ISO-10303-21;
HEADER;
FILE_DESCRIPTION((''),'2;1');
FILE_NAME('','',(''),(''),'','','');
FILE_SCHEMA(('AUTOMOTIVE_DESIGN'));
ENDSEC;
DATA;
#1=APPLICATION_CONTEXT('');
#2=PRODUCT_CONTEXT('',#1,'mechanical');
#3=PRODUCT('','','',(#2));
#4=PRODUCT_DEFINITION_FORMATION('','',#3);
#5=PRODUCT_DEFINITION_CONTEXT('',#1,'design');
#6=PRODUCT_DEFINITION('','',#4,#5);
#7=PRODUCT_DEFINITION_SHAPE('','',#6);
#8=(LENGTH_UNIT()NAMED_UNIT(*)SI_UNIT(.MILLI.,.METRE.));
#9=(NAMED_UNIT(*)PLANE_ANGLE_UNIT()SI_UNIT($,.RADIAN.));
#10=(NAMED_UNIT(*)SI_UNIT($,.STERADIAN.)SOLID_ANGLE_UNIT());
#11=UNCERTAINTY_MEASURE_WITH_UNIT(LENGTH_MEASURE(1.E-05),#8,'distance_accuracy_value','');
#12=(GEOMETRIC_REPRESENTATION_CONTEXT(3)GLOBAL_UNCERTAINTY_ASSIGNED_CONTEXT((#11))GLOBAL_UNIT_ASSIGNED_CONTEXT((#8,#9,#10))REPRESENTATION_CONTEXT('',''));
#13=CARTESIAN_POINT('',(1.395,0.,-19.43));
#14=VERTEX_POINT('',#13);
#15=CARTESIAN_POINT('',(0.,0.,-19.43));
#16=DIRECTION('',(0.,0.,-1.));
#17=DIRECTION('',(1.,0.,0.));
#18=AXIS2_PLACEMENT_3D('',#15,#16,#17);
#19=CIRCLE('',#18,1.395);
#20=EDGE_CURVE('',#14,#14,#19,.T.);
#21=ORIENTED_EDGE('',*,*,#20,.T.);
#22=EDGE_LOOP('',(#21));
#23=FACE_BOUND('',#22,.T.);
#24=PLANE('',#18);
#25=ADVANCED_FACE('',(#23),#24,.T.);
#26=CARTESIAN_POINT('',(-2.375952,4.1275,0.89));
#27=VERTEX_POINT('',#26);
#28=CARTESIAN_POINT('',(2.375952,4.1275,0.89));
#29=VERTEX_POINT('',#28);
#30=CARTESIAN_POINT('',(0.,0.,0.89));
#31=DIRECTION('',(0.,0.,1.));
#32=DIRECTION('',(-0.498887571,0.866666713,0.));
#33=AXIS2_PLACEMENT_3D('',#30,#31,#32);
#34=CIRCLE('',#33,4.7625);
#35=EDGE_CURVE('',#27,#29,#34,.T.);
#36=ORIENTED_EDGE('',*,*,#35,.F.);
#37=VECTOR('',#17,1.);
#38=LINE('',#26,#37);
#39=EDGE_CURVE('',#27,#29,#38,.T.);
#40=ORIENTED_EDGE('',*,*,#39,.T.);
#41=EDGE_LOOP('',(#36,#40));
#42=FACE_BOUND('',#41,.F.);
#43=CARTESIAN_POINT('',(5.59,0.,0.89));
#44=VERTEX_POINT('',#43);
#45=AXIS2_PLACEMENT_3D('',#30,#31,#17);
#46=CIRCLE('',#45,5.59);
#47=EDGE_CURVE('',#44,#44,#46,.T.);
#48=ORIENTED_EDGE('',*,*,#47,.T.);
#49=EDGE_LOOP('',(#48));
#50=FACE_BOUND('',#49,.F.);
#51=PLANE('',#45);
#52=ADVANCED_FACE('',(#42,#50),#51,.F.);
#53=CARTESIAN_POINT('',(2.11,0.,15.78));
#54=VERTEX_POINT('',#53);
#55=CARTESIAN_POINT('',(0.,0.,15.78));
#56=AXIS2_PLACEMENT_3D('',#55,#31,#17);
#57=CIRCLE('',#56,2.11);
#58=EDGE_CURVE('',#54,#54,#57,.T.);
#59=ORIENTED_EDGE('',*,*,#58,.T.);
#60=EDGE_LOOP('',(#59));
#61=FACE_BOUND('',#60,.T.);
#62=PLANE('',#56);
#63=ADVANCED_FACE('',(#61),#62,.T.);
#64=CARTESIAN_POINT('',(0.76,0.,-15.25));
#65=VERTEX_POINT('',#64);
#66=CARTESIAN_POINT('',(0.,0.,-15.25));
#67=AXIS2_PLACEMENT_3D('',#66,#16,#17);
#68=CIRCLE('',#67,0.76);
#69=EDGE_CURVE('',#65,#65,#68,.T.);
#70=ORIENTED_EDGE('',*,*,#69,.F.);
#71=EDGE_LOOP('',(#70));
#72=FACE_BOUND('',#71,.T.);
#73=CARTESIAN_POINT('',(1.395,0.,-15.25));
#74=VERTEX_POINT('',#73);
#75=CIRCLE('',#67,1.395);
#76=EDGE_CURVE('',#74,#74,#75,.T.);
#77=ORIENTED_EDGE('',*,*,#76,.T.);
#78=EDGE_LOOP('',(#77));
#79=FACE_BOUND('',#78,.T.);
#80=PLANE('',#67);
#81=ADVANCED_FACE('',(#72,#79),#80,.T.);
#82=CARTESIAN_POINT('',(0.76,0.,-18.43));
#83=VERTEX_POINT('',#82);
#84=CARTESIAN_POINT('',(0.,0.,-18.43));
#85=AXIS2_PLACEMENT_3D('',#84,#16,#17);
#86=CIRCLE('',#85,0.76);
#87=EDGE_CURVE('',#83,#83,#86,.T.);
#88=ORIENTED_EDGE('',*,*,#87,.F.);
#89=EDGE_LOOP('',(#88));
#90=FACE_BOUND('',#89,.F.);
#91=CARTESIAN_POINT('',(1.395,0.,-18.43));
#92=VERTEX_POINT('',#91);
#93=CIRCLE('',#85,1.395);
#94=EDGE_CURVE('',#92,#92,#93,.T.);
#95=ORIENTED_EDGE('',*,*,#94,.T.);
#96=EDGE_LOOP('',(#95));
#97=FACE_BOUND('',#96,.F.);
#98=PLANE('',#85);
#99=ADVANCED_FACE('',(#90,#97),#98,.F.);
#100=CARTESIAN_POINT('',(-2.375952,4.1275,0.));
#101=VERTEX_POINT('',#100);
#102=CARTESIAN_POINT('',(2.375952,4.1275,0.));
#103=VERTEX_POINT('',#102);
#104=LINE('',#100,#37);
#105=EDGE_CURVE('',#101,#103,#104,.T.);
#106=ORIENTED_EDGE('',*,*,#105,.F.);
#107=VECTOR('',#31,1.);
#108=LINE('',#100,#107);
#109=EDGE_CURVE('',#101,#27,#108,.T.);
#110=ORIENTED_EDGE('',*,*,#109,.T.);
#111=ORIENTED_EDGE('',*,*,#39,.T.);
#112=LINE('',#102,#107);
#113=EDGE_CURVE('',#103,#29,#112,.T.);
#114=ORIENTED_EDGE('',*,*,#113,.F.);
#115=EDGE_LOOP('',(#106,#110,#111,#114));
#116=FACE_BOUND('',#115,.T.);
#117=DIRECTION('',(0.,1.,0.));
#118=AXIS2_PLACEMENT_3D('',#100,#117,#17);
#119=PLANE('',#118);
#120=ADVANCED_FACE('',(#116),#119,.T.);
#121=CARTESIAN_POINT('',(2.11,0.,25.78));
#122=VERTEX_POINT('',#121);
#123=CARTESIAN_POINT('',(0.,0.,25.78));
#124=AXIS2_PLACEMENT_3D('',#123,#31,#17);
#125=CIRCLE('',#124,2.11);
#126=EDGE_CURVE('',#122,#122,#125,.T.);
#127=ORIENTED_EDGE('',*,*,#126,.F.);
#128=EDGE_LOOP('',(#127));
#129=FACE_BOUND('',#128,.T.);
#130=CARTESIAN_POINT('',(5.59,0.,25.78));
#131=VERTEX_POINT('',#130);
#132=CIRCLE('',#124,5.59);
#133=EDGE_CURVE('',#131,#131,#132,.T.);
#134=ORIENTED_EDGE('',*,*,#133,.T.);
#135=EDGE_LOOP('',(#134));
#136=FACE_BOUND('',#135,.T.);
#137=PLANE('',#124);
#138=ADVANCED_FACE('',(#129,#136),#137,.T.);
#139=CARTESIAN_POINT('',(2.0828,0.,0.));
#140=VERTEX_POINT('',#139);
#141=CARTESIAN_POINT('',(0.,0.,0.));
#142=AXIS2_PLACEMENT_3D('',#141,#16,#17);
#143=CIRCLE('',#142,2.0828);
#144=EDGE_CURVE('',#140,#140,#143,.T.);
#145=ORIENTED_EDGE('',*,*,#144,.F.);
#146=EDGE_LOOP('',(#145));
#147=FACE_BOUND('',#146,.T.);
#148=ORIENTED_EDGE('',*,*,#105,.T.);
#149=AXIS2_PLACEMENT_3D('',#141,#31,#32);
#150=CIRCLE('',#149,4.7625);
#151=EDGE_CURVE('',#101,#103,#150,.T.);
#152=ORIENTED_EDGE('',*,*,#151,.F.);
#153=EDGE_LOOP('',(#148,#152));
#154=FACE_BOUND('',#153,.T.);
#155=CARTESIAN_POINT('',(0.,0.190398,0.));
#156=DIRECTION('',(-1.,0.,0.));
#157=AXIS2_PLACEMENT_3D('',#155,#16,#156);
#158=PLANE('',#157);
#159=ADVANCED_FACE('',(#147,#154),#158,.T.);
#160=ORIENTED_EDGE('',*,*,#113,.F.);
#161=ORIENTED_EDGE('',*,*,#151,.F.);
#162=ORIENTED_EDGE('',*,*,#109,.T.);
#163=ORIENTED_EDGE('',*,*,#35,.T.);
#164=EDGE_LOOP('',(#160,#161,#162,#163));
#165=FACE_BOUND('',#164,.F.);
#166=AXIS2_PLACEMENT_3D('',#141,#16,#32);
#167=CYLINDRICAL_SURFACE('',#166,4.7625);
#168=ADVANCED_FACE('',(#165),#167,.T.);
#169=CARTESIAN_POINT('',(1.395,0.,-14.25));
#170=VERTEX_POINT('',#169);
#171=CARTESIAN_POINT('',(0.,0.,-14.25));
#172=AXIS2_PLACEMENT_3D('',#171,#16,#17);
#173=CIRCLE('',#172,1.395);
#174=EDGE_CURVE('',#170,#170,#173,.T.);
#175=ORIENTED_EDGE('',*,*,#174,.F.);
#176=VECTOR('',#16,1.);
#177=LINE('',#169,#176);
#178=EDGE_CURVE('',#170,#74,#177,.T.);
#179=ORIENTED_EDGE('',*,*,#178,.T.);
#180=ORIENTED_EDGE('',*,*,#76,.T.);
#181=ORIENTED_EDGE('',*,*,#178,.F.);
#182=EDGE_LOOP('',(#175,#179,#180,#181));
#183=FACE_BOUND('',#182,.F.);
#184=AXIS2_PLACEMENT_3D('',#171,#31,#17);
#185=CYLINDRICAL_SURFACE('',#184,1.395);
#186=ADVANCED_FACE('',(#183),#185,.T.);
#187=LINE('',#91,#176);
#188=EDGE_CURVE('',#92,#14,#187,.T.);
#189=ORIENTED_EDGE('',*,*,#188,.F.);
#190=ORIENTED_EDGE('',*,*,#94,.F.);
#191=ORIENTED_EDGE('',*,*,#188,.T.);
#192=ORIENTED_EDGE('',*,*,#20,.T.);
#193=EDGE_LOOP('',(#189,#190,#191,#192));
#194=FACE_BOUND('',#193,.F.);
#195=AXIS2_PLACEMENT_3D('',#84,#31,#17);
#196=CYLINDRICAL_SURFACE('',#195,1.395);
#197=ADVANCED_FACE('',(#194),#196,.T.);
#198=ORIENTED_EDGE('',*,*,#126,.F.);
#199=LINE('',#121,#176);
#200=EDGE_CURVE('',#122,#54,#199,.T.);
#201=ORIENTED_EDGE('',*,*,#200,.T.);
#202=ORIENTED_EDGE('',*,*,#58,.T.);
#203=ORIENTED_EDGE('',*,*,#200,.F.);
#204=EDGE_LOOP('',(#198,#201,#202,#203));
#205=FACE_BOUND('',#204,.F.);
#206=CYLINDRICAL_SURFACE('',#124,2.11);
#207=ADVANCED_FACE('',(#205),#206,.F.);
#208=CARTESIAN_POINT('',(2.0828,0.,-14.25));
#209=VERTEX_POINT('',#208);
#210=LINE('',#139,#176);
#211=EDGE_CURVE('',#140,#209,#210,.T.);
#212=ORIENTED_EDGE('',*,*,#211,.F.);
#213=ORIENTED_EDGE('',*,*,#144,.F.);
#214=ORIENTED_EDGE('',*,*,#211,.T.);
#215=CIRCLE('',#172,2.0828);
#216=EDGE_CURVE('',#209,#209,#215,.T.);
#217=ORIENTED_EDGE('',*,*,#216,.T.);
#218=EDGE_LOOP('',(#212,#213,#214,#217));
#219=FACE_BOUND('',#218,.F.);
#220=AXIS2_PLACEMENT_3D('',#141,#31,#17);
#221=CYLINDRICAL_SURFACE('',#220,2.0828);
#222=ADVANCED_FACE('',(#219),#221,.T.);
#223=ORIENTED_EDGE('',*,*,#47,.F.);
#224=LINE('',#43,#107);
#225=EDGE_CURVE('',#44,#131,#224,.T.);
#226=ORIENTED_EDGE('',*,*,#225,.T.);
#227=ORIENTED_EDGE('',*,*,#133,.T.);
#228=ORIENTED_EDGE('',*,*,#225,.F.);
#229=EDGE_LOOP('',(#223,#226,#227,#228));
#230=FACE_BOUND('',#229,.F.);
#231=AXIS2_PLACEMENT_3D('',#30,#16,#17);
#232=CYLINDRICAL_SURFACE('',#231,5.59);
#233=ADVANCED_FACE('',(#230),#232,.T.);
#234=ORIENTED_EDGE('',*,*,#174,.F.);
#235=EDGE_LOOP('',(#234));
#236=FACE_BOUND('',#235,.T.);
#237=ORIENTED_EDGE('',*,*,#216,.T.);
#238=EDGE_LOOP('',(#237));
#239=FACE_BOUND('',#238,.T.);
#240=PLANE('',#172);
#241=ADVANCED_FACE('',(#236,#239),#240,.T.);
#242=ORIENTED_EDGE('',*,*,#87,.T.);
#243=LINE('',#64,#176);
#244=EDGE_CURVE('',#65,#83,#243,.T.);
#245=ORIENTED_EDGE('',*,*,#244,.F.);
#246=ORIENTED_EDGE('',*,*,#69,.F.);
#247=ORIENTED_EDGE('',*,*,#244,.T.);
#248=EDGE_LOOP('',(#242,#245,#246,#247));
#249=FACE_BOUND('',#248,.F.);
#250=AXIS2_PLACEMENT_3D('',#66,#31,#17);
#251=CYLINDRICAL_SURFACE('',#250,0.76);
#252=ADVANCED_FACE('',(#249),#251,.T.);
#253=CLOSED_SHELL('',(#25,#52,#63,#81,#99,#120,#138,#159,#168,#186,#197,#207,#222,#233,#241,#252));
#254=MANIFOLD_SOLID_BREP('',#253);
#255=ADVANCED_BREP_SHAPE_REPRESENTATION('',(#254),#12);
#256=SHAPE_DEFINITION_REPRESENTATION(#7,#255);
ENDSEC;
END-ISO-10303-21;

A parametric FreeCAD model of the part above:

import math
import FreeCAD as App
import Part
import Sketcher

doc = App.newDocument("Part")
body = doc.addObject("PartDesign::Body", "Body")

# Sketch on XY plane
sketch1 = body.newObject("Sketcher::SketchObject", "Sketch")
sketch1.AttachmentSupport = (doc.getObject("XY_Plane"), [""])
sketch1.MapMode = "FlatFace"
sketch1.addGeometry(Part.LineSegment(App.Vector(2.375952, 4.1275, 0), App.Vector(-2.375952, 4.1275, 0)), False)
sketch1.addGeometry(Part.ArcOfCircle(Part.Circle(App.Vector(0, 0, 0), App.Vector(0, 0, 1), 4.7625), math.radians(119.92643), math.radians(420.07357)), False)
sketch1.addConstraint(Sketcher.Constraint("Coincident", 0, 1, 1, 2))
sketch1.addConstraint(Sketcher.Constraint("Coincident", 1, 1, 0, 2))
sketch1.addConstraint(Sketcher.Constraint("Horizontal", 0))
sketch1.addConstraint(Sketcher.Constraint("Coincident", 1, 3, -1, 1))
sketch1.addConstraint(Sketcher.Constraint("Radius", 1, 4.7625))
sketch1.addConstraint(Sketcher.Constraint("DistanceY", -1, 1, 0, 1, 4.1275))
pad1 = body.newObject("PartDesign::Pad", "Pad")
pad1.Profile = sketch1
pad1.Length = 0.89

# Sketch on XY plane
sketch2 = body.newObject("Sketcher::SketchObject", "Sketch001")
sketch2.AttachmentSupport = (doc.getObject("XY_Plane"), [""])
sketch2.MapMode = "FlatFace"
sketch2.AttachmentOffset = App.Placement(App.Vector(0, 0, 0.89), App.Rotation())
sketch2.addGeometry(Part.Circle(App.Vector(0, 0, 0), App.Vector(0, 0, 1), 5.59), False)
sketch2.addConstraint(Sketcher.Constraint("Coincident", 0, 3, -1, 1))
sketch2.addConstraint(Sketcher.Constraint("Diameter", 0, 11.18))
pad2 = body.newObject("PartDesign::Pad", "Pad001")
pad2.Profile = sketch2
pad2.Length = 24.89

# Sketch on XY plane
sketch3 = body.newObject("Sketcher::SketchObject", "Sketch002")
sketch3.AttachmentSupport = (doc.getObject("XY_Plane"), [""])
sketch3.MapMode = "FlatFace"
sketch3.addGeometry(Part.Circle(App.Vector(0, 0, 0), App.Vector(0, 0, 1), 2.0828), False)
sketch3.addConstraint(Sketcher.Constraint("Coincident", 0, 3, -1, 1))
sketch3.addConstraint(Sketcher.Constraint("Diameter", 0, 4.1656))
pad3 = body.newObject("PartDesign::Pad", "Pad002")
pad3.Profile = sketch3
pad3.Length = 14.25
pad3.Reversed = True

# Sketch on XY plane
sketch4 = body.newObject("Sketcher::SketchObject", "Sketch003")
sketch4.AttachmentSupport = (doc.getObject("XY_Plane"), [""])
sketch4.MapMode = "FlatFace"
sketch4.AttachmentOffset = App.Placement(App.Vector(0, 0, -14.25), App.Rotation())
sketch4.addGeometry(Part.Circle(App.Vector(0, 0, 0), App.Vector(0, 0, 1), 1.395), False)
sketch4.addConstraint(Sketcher.Constraint("Coincident", 0, 3, -1, 1))
sketch4.addConstraint(Sketcher.Constraint("Diameter", 0, 2.79))
pad4 = body.newObject("PartDesign::Pad", "Pad003")
pad4.Profile = sketch4
pad4.Length = 1
pad4.Reversed = True

# Sketch on XY plane
sketch5 = body.newObject("Sketcher::SketchObject", "Sketch004")
sketch5.AttachmentSupport = (doc.getObject("XY_Plane"), [""])
sketch5.MapMode = "FlatFace"
sketch5.AttachmentOffset = App.Placement(App.Vector(0, 0, -15.25), App.Rotation())
sketch5.addGeometry(Part.Circle(App.Vector(0, 0, 0), App.Vector(0, 0, 1), 0.76), False)
sketch5.addConstraint(Sketcher.Constraint("Coincident", 0, 3, -1, 1))
sketch5.addConstraint(Sketcher.Constraint("Diameter", 0, 1.52))
pad5 = body.newObject("PartDesign::Pad", "Pad004")
pad5.Profile = sketch5
pad5.Length = 3.18
pad5.Reversed = True

# Sketch on XY plane
sketch6 = body.newObject("Sketcher::SketchObject", "Sketch005")
sketch6.AttachmentSupport = (doc.getObject("XY_Plane"), [""])
sketch6.MapMode = "FlatFace"
sketch6.AttachmentOffset = App.Placement(App.Vector(0, 0, -18.43), App.Rotation())
sketch6.addGeometry(Part.Circle(App.Vector(0, 0, 0), App.Vector(0, 0, 1), 1.395), False)
sketch6.addConstraint(Sketcher.Constraint("Coincident", 0, 3, -1, 1))
sketch6.addConstraint(Sketcher.Constraint("Diameter", 0, 2.79))
pad6 = body.newObject("PartDesign::Pad", "Pad005")
pad6.Profile = sketch6
pad6.Length = 1
pad6.Reversed = True

# Sketch on XY plane
sketch7 = body.newObject("Sketcher::SketchObject", "Sketch006")
sketch7.AttachmentSupport = (doc.getObject("XY_Plane"), [""])
sketch7.MapMode = "FlatFace"
sketch7.AttachmentOffset = App.Placement(App.Vector(0, 0, 25.78), App.Rotation())
sketch7.addGeometry(Part.Circle(App.Vector(0, 0, 0), App.Vector(0, 0, 1), 2.11), False)
sketch7.addConstraint(Sketcher.Constraint("Coincident", 0, 3, -1, 1))
sketch7.addConstraint(Sketcher.Constraint("Diameter", 0, 4.22))
pocket1 = body.newObject("PartDesign::Pocket", "Pocket")
pocket1.Profile = sketch7
pocket1.Length = 10

doc.recompute()
